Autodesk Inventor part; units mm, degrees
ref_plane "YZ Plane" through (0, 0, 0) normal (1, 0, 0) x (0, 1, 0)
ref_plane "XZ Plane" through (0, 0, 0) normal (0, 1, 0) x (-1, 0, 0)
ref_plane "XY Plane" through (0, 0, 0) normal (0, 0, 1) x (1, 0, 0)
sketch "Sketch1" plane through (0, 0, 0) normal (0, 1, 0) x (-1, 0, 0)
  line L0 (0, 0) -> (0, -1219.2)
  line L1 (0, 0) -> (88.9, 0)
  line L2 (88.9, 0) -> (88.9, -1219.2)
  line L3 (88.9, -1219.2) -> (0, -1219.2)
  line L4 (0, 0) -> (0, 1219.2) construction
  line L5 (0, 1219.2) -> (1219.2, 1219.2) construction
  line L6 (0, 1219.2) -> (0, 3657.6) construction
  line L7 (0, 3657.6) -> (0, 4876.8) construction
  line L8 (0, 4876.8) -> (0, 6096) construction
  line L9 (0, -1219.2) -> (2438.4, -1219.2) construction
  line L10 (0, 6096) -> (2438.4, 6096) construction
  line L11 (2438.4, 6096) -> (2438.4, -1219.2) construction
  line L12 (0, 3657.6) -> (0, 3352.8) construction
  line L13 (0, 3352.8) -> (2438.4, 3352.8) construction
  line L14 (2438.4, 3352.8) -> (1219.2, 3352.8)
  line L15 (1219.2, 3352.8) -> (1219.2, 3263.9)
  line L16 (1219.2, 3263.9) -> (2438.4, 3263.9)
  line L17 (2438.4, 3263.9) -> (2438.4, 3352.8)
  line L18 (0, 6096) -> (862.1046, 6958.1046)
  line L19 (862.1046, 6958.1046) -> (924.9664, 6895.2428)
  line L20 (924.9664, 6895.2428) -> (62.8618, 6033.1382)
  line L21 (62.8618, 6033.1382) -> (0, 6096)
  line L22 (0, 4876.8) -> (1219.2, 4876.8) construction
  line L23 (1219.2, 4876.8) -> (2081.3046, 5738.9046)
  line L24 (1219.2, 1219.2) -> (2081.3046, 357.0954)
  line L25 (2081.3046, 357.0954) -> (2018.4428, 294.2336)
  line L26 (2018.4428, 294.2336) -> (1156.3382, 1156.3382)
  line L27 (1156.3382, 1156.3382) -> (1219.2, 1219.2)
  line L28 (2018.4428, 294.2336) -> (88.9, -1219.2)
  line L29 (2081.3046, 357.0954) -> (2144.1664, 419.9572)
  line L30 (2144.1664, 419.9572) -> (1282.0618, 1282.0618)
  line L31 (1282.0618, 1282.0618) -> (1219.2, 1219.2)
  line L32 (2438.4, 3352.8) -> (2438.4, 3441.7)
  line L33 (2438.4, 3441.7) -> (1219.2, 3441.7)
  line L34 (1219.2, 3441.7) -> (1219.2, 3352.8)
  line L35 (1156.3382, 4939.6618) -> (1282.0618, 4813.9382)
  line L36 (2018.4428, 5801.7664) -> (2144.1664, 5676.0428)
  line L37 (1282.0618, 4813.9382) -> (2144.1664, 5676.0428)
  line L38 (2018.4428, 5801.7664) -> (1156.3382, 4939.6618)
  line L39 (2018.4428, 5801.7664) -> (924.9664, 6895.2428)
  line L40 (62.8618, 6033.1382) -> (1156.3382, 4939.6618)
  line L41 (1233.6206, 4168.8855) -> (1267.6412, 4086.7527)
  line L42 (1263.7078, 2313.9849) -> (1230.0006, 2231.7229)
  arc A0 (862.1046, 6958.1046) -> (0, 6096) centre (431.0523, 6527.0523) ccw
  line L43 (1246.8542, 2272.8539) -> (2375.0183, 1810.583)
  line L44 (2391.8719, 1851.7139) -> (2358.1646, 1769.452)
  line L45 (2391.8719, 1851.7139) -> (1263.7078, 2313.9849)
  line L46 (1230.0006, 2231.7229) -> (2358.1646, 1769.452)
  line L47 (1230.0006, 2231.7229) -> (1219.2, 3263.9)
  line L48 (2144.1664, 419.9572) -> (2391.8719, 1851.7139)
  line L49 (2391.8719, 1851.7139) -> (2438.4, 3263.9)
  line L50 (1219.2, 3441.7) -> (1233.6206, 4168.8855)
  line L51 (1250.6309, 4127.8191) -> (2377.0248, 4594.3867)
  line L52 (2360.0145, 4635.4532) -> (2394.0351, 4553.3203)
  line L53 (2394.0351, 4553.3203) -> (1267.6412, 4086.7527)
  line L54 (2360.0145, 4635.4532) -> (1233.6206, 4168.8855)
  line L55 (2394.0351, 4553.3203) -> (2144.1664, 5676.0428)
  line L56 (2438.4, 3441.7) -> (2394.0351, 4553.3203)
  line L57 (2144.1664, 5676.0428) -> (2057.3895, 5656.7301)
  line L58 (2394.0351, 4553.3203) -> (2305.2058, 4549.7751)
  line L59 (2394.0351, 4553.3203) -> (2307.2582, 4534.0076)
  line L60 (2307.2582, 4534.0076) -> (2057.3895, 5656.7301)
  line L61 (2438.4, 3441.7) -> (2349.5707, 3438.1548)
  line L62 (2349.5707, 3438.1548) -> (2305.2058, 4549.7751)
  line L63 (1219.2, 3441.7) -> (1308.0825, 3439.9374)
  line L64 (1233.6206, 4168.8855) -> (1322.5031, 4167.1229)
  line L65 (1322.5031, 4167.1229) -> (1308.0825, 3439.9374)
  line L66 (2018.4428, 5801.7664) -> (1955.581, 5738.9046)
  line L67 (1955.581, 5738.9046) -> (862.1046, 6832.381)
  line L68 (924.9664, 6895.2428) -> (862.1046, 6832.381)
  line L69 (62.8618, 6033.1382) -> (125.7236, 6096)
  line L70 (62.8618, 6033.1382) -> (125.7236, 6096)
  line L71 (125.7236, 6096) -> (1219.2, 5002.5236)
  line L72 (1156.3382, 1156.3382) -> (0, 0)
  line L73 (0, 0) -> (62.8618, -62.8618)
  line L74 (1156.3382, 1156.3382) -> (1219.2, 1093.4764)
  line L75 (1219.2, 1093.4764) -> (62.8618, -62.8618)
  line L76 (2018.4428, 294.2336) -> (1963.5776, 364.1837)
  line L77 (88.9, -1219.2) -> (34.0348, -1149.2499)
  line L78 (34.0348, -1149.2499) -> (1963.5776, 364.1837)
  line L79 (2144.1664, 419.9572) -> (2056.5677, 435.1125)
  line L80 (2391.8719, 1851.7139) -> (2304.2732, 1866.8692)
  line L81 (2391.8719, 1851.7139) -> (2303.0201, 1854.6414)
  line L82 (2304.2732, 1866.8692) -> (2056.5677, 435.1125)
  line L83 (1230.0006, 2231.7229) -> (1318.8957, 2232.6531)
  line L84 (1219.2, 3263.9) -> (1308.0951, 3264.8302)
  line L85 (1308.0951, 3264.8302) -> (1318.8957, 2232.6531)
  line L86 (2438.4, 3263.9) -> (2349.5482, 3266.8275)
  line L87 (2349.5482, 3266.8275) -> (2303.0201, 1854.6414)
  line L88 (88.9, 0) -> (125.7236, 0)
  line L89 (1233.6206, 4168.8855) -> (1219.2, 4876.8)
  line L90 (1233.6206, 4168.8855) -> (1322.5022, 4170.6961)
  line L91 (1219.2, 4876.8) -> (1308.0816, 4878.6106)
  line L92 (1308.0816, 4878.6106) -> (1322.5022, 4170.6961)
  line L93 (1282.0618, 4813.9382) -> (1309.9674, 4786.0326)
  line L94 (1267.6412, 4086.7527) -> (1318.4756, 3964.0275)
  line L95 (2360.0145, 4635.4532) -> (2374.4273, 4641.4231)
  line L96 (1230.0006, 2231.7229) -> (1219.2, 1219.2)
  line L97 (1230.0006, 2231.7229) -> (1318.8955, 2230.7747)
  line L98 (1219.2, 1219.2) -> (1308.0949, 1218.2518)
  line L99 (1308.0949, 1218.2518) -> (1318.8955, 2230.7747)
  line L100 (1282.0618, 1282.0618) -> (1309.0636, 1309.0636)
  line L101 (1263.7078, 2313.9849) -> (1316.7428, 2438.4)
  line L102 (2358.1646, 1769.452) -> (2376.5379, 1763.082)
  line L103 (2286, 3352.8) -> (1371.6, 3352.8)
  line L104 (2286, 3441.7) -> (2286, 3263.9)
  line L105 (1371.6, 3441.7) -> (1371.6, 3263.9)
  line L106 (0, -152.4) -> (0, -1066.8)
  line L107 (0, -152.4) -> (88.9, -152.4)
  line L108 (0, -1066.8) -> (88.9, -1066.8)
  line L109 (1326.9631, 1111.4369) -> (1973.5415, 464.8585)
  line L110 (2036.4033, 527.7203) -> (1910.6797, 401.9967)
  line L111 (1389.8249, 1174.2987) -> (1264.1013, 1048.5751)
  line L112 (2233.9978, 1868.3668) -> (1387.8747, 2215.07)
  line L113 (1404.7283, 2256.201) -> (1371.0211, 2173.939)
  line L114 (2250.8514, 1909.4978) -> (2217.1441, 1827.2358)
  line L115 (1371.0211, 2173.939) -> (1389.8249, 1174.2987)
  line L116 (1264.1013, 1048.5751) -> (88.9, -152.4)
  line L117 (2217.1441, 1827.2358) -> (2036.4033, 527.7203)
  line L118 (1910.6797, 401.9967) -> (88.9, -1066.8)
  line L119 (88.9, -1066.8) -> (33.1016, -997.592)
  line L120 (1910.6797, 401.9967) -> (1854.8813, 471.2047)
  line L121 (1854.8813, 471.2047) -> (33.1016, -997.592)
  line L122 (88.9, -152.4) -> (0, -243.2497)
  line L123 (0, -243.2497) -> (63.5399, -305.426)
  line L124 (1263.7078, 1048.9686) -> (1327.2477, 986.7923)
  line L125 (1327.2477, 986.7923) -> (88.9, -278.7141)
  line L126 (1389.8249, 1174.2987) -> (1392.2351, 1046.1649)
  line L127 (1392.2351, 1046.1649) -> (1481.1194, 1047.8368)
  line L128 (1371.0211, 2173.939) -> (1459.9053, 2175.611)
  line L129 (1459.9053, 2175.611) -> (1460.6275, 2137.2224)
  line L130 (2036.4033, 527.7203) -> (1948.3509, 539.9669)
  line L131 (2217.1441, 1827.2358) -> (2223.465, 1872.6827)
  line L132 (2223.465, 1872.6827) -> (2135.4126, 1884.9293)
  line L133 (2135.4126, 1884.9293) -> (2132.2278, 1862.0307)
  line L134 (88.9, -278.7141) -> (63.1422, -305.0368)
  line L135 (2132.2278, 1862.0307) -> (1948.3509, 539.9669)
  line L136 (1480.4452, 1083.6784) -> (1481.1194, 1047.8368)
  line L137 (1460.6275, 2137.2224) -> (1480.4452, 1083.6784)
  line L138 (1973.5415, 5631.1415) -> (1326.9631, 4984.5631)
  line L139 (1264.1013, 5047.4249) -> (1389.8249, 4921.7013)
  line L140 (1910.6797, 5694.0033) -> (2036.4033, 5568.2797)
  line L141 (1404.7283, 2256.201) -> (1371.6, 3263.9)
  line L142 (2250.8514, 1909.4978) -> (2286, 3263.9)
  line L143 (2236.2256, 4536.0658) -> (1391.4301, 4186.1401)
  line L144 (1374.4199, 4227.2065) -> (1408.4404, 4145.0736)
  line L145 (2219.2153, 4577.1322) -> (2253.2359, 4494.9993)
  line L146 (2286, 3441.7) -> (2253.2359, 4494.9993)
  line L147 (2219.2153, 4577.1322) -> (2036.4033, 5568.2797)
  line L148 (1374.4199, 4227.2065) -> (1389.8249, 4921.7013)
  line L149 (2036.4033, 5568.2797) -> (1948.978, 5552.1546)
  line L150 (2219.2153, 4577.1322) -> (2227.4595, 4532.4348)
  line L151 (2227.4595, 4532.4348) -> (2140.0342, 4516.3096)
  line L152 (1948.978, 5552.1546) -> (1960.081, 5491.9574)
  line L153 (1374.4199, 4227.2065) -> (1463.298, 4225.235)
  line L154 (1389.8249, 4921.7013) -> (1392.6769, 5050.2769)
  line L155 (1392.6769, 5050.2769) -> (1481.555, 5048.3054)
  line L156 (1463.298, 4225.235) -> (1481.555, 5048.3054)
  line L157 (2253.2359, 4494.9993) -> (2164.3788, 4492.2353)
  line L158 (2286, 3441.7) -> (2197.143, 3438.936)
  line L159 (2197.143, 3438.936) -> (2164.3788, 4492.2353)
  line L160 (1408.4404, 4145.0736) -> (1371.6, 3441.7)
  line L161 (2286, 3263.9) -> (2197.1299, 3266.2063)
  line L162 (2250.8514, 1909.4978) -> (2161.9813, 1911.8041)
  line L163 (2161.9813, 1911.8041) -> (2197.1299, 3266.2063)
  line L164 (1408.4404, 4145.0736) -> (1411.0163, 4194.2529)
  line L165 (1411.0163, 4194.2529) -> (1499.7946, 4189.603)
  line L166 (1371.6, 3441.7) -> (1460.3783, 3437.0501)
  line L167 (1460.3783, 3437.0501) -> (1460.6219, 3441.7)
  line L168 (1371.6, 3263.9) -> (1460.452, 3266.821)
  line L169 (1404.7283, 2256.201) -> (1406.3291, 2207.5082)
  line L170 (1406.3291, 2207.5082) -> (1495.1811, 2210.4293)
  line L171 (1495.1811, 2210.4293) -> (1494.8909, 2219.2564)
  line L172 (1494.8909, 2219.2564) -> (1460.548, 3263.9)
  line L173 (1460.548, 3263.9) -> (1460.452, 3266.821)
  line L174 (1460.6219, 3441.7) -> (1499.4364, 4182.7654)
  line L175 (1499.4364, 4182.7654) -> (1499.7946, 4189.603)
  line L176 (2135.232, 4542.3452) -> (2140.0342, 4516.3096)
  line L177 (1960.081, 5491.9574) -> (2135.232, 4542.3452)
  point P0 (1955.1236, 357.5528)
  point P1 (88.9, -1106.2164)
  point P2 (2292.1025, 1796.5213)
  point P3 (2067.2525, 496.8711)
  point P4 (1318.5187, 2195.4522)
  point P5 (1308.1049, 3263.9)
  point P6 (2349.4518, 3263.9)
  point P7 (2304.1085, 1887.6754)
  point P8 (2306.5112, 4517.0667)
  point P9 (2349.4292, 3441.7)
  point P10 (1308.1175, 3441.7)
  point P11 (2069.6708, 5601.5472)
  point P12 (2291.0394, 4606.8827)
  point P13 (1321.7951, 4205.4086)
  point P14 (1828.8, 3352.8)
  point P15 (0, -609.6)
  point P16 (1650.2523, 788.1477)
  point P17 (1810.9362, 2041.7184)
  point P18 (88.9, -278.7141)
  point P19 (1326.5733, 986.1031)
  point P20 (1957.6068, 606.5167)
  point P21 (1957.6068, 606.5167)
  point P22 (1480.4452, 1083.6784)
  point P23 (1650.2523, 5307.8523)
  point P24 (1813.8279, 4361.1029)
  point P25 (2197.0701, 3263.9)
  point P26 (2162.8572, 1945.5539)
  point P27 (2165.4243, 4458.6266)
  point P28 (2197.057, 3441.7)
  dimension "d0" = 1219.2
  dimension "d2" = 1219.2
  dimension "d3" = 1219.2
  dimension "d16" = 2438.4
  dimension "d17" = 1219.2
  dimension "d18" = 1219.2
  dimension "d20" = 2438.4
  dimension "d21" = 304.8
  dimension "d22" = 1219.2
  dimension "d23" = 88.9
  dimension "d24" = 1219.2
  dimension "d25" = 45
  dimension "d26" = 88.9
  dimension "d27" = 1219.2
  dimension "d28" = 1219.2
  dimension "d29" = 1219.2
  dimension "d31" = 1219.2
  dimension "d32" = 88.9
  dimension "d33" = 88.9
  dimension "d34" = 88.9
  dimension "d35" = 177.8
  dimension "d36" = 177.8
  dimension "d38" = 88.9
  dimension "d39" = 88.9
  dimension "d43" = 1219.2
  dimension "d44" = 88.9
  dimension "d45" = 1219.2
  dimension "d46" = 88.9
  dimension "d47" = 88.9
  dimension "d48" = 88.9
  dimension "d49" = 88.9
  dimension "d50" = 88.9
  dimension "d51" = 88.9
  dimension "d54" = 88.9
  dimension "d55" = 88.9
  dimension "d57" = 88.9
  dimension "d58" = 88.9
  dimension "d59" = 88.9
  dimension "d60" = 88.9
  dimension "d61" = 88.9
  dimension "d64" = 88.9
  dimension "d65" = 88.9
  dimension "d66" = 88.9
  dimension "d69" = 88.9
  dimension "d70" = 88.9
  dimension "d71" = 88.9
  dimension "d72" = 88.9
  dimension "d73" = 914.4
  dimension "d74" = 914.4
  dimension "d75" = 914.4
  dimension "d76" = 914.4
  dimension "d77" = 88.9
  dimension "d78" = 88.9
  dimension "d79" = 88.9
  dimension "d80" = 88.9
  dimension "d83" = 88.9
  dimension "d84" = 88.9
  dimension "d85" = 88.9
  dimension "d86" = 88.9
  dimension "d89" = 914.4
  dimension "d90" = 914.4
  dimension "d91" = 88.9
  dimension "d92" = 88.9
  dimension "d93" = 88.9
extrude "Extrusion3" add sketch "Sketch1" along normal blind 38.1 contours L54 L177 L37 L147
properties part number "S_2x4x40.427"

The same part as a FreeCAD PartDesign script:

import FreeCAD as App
import Part
import Sketcher

V = App.Vector
Q = App.Units.Quantity

doc = App.newDocument("Part")
body = doc.addObject("PartDesign::Body", "Body")

sketch1 = doc.addObject("Sketcher::SketchObject", "Sketch")
body.addObject(sketch1)
sketch1.AttachmentSupport = (doc.XZ_Plane, [""])
sketch1.MapMode = "FlatFace"
sketch1.addGeometry([
    Part.LineSegment(V(-2135, 4542, 0), V(-2219, 4577, 0)),
    Part.LineSegment(V(-2219, 4577, 0), V(-2036, 5568, 0)),
    Part.LineSegment(V(-2036, 5568, 0), V(-1960, 5492, 0)),
    Part.LineSegment(V(-1960, 5492, 0), V(-2135, 4542, 0)),
], False)
sketch1.addConstraint([
    Sketcher.Constraint("Coincident", 0, 2, 1, 1),
    Sketcher.Constraint("Coincident", 1, 2, 2, 1),
    Sketcher.Constraint("Coincident", 2, 2, 3, 1),
    Sketcher.Constraint("Coincident", 3, 2, 0, 1),
    Sketcher.Constraint("Parallel", 1, 3),
    Sketcher.Constraint("Angle", 2, Q("-45 deg")),
    Sketcher.Constraint("Angle", 0, Q("157.5 deg")),
    Sketcher.Constraint("Angle", 1, Q("79.5495 deg")),
    Sketcher.Constraint("DistanceY", -1, 1, 1, 2, Q("219.2236 in")),
    Sketcher.Constraint("DistanceY", -1, 1, 2, 2, Q("216.2188 in")),
    Sketcher.Constraint("DistanceY", -1, 1, 3, 2, Q("178.8325 in")),
    Sketcher.Constraint("DistanceX", 0, 2, -1, 1, 2219.2153),
])
pad1 = doc.addObject("PartDesign::Pad", "Pad")
body.addObject(pad1)
pad1.Profile = sketch1
pad1.Length = Q("1.5 in")
pad1.Reversed = True

doc.recompute()
